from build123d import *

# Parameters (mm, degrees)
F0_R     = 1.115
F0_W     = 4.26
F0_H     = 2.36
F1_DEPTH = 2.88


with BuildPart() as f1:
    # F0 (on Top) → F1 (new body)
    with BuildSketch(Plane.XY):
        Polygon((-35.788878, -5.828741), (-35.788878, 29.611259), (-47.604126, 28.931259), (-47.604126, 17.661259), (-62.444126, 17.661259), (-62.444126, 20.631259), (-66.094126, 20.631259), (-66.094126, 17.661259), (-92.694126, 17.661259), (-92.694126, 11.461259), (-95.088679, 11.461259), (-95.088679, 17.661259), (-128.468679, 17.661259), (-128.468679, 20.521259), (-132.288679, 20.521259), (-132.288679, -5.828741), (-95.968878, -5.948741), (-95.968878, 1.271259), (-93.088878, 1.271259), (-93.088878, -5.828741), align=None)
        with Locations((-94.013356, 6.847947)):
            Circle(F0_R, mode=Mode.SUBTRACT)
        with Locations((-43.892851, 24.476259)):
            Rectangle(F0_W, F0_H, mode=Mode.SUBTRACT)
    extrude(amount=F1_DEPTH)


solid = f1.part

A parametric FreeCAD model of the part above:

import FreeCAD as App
import Part
import Sketcher

V = App.Vector

doc = App.newDocument("Part")
body = doc.addObject("PartDesign::Body", "Body")

# Sketch on XY plane
sketch1 = doc.addObject("Sketcher::SketchObject", "Sketch")
body.addObject(sketch1)
sketch1.AttachmentSupport = (doc.XY_Plane, [""])
sketch1.MapMode = "FlatFace"
sketch1.addGeometry(Part.LineSegment(V(-35.8, -5.8, 0), V(-35.8, 29.6, 0)), False)
sketch1.addGeometry(Part.LineSegment(V(-35.8, 29.6, 0), V(-47.6, 28.9, 0)), False)
sketch1.addGeometry(Part.LineSegment(V(-47.6, 28.9, 0), V(-47.6, 17.7, 0)), False)
sketch1.addGeometry(Part.LineSegment(V(-47.6, 17.7, 0), V(-62.4, 17.7, 0)), False)
sketch1.addGeometry(Part.LineSegment(V(-62.4, 17.7, 0), V(-62.4, 20.6, 0)), False)
sketch1.addGeometry(Part.LineSegment(V(-62.4, 20.6, 0), V(-66.1, 20.6, 0)), False)
sketch1.addGeometry(Part.LineSegment(V(-66.1, 20.6, 0), V(-66.1, 17.7, 0)), False)
sketch1.addGeometry(Part.LineSegment(V(-66.1, 17.7, 0), V(-92.7, 17.7, 0)), False)
sketch1.addGeometry(Part.LineSegment(V(-92.7, 17.7, 0), V(-92.7, 11.5, 0)), False)
sketch1.addGeometry(Part.LineSegment(V(-92.7, 11.5, 0), V(-95.1, 11.5, 0)), False)
sketch1.addGeometry(Part.LineSegment(V(-95.1, 11.5, 0), V(-95.1, 17.7, 0)), False)
sketch1.addGeometry(Part.LineSegment(V(-95.1, 17.7, 0), V(-128.5, 17.7, 0)), False)
sketch1.addGeometry(Part.LineSegment(V(-128.5, 17.7, 0), V(-128.5, 20.5, 0)), False)
sketch1.addGeometry(Part.LineSegment(V(-128.5, 20.5, 0), V(-132.3, 20.5, 0)), False)
sketch1.addGeometry(Part.LineSegment(V(-132.3, 20.5, 0), V(-132.3, -5.8, 0)), False)
sketch1.addGeometry(Part.LineSegment(V(-132.3, -5.8, 0), V(-96, -5.9, 0)), False)
sketch1.addGeometry(Part.LineSegment(V(-96, -5.9, 0), V(-96, 1.3, 0)), False)
sketch1.addGeometry(Part.LineSegment(V(-96, 1.3, 0), V(-93.1, 1.3, 0)), False)
sketch1.addGeometry(Part.LineSegment(V(-93.1, 1.3, 0), V(-93.1, -5.8, 0)), False)
sketch1.addGeometry(Part.LineSegment(V(-93.1, -5.8, 0), V(-35.8, -5.8, 0)), False)
sketch1.addGeometry(Part.Circle(V(-94, 6.8, 0), V(0, 0, 1), 1.1), False)
sketch1.addGeometry(Part.LineSegment(V(-41.8, 23.3, 0), V(-46, 23.3, 0)), False)
sketch1.addGeometry(Part.LineSegment(V(-46, 23.3, 0), V(-46, 25.7, 0)), False)
sketch1.addGeometry(Part.LineSegment(V(-46, 25.7, 0), V(-41.8, 25.7, 0)), False)
sketch1.addGeometry(Part.LineSegment(V(-41.8, 25.7, 0), V(-41.8, 23.3, 0)), False)
sketch1.addConstraint(Sketcher.Constraint("Coincident", 0, 2, 1, 1))
sketch1.addConstraint(Sketcher.Constraint("Coincident", 1, 2, 2, 1))
sketch1.addConstraint(Sketcher.Constraint("Coincident", 2, 2, 3, 1))
sketch1.addConstraint(Sketcher.Constraint("Coincident", 3, 2, 4, 1))
sketch1.addConstraint(Sketcher.Constraint("Coincident", 4, 2, 5, 1))
sketch1.addConstraint(Sketcher.Constraint("Coincident", 5, 2, 6, 1))
sketch1.addConstraint(Sketcher.Constraint("Coincident", 6, 2, 7, 1))
sketch1.addConstraint(Sketcher.Constraint("Coincident", 7, 2, 8, 1))
sketch1.addConstraint(Sketcher.Constraint("Coincident", 8, 2, 9, 1))
sketch1.addConstraint(Sketcher.Constraint("Coincident", 9, 2, 10, 1))
sketch1.addConstraint(Sketcher.Constraint("Coincident", 10, 2, 11, 1))
sketch1.addConstraint(Sketcher.Constraint("Coincident", 11, 2, 12, 1))
sketch1.addConstraint(Sketcher.Constraint("Coincident", 12, 2, 13, 1))
sketch1.addConstraint(Sketcher.Constraint("Coincident", 13, 2, 14, 1))
sketch1.addConstraint(Sketcher.Constraint("Coincident", 14, 2, 15, 1))
sketch1.addConstraint(Sketcher.Constraint("Coincident", 15, 2, 16, 1))
sketch1.addConstraint(Sketcher.Constraint("Coincident", 16, 2, 17, 1))
sketch1.addConstraint(Sketcher.Constraint("Coincident", 17, 2, 18, 1))
sketch1.addConstraint(Sketcher.Constraint("Coincident", 18, 2, 19, 1))
sketch1.addConstraint(Sketcher.Constraint("Coincident", 19, 2, 0, 1))
sketch1.addConstraint(Sketcher.Constraint("Coincident", 21, 2, 22, 1))
sketch1.addConstraint(Sketcher.Constraint("Coincident", 22, 2, 23, 1))
sketch1.addConstraint(Sketcher.Constraint("Coincident", 23, 2, 24, 1))
sketch1.addConstraint(Sketcher.Constraint("Coincident", 24, 2, 21, 1))
sketch1.addConstraint(Sketcher.Constraint("Vertical", 0))
sketch1.addConstraint(Sketcher.Constraint("Vertical", 2))
sketch1.addConstraint(Sketcher.Constraint("Horizontal", 3))
sketch1.addConstraint(Sketcher.Constraint("Vertical", 4))
sketch1.addConstraint(Sketcher.Constraint("Horizontal", 5))
sketch1.addConstraint(Sketcher.Constraint("Vertical", 6))
sketch1.addConstraint(Sketcher.Constraint("Horizontal", 7))
sketch1.addConstraint(Sketcher.Constraint("Vertical", 8))
sketch1.addConstraint(Sketcher.Constraint("Horizontal", 9))
sketch1.addConstraint(Sketcher.Constraint("Vertical", 10))
sketch1.addConstraint(Sketcher.Constraint("Horizontal", 11))
sketch1.addConstraint(Sketcher.Constraint("Vertical", 12))
sketch1.addConstraint(Sketcher.Constraint("Horizontal", 13))
sketch1.addConstraint(Sketcher.Constraint("Vertical", 14))
sketch1.addConstraint(Sketcher.Constraint("Vertical", 16))
sketch1.addConstraint(Sketcher.Constraint("Horizontal", 17))
sketch1.addConstraint(Sketcher.Constraint("Vertical", 18))
sketch1.addConstraint(Sketcher.Constraint("Horizontal", 19))
sketch1.addConstraint(Sketcher.Constraint("Horizontal", 21))
sketch1.addConstraint(Sketcher.Constraint("Vertical", 22))
sketch1.addConstraint(Sketcher.Constraint("Horizontal", 23))
sketch1.addConstraint(Sketcher.Constraint("Vertical", 24))
sketch1.addConstraint(Sketcher.Constraint("Horizontal", 3, 2, 6, 2))
sketch1.addConstraint(Sketcher.Constraint("Horizontal", 7, 2, 10, 2))
sketch1.addConstraint(Sketcher.Constraint("Horizontal", 14, 2, 18, 2))
sketch1.addConstraint(Sketcher.Constraint("Diameter", 20, 2.23))
sketch1.addConstraint(Sketcher.Constraint("DistanceX", 7, 2, 7, 1, 26.6))
sketch1.addConstraint(Sketcher.Constraint("DistanceX", 19, 1, 19, 2, 57.3))
sketch1.addConstraint(Sketcher.Constraint("DistanceY", 8, 2, 8, 1, 6.2))
sketch1.addConstraint(Sketcher.Constraint("DistanceY", 18, 2, 18, 1, 7.1))
sketch1.addConstraint(Sketcher.Constraint("DistanceX", 3, 2, 3, 1, 14.84))
sketch1.addConstraint(Sketcher.Constraint("DistanceX", 5, 2, 5, 1, 3.65))
sketch1.addConstraint(Sketcher.Constraint("DistanceX", 11, 2, 11, 1, 33.38))
sketch1.addConstraint(Sketcher.Constraint("DistanceX", 13, 2, 13, 1, 3.82))
sketch1.addConstraint(Sketcher.Constraint("DistanceX", 17, 1, 17, 2, 2.88))
sketch1.addConstraint(Sketcher.Constraint("DistanceX", 21, 2, 21, 1, 4.26))
sketch1.addConstraint(Sketcher.Constraint("DistanceY", 0, 1, 0, 2, 35.44))
sketch1.addConstraint(Sketcher.Constraint("DistanceY", 2, 2, 2, 1, 11.27))
sketch1.addConstraint(Sketcher.Constraint("DistanceY", 4, 1, 4, 2, 2.97))
sketch1.addConstraint(Sketcher.Constraint("DistanceY", 12, 1, 12, 2, 2.86))
sketch1.addConstraint(Sketcher.Constraint("DistanceY", 14, 2, 14, 1, 26.35))
sketch1.addConstraint(Sketcher.Constraint("DistanceY", 16, 1, 16, 2, 7.22))
sketch1.addConstraint(Sketcher.Constraint("DistanceY", 22, 1, 22, 2, 2.36))
sketch1.addConstraint(Sketcher.Constraint("Distance", 15, 36.319999))
sketch1.addConstraint(Sketcher.Constraint("DistanceY", 2, 2, 21, 2, 5.635))
sketch1.addConstraint(Sketcher.Constraint("Distance", 1, 11.8348))
sketch1.addConstraint(Sketcher.Constraint("DistanceY", -1, 1, 0, 2, 29.611259))
sketch1.addConstraint(Sketcher.Constraint("DistanceX", 9, 2, -1, 1, 95.088679))
sketch1.addConstraint(Sketcher.Constraint("DistanceX", 21, 2, -1, 1, 46.022851))
sketch1.addConstraint(Sketcher.Constraint("DistanceX", 20, 3, 0, 2, 58.224478))
sketch1.addConstraint(Sketcher.Constraint("DistanceY", 20, 3, 0, 2, 22.763312))
pad1 = doc.addObject("PartDesign::Pad", "Pad")
body.addObject(pad1)
pad1.Profile = sketch1
pad1.Length = 2.88

doc.recompute()
